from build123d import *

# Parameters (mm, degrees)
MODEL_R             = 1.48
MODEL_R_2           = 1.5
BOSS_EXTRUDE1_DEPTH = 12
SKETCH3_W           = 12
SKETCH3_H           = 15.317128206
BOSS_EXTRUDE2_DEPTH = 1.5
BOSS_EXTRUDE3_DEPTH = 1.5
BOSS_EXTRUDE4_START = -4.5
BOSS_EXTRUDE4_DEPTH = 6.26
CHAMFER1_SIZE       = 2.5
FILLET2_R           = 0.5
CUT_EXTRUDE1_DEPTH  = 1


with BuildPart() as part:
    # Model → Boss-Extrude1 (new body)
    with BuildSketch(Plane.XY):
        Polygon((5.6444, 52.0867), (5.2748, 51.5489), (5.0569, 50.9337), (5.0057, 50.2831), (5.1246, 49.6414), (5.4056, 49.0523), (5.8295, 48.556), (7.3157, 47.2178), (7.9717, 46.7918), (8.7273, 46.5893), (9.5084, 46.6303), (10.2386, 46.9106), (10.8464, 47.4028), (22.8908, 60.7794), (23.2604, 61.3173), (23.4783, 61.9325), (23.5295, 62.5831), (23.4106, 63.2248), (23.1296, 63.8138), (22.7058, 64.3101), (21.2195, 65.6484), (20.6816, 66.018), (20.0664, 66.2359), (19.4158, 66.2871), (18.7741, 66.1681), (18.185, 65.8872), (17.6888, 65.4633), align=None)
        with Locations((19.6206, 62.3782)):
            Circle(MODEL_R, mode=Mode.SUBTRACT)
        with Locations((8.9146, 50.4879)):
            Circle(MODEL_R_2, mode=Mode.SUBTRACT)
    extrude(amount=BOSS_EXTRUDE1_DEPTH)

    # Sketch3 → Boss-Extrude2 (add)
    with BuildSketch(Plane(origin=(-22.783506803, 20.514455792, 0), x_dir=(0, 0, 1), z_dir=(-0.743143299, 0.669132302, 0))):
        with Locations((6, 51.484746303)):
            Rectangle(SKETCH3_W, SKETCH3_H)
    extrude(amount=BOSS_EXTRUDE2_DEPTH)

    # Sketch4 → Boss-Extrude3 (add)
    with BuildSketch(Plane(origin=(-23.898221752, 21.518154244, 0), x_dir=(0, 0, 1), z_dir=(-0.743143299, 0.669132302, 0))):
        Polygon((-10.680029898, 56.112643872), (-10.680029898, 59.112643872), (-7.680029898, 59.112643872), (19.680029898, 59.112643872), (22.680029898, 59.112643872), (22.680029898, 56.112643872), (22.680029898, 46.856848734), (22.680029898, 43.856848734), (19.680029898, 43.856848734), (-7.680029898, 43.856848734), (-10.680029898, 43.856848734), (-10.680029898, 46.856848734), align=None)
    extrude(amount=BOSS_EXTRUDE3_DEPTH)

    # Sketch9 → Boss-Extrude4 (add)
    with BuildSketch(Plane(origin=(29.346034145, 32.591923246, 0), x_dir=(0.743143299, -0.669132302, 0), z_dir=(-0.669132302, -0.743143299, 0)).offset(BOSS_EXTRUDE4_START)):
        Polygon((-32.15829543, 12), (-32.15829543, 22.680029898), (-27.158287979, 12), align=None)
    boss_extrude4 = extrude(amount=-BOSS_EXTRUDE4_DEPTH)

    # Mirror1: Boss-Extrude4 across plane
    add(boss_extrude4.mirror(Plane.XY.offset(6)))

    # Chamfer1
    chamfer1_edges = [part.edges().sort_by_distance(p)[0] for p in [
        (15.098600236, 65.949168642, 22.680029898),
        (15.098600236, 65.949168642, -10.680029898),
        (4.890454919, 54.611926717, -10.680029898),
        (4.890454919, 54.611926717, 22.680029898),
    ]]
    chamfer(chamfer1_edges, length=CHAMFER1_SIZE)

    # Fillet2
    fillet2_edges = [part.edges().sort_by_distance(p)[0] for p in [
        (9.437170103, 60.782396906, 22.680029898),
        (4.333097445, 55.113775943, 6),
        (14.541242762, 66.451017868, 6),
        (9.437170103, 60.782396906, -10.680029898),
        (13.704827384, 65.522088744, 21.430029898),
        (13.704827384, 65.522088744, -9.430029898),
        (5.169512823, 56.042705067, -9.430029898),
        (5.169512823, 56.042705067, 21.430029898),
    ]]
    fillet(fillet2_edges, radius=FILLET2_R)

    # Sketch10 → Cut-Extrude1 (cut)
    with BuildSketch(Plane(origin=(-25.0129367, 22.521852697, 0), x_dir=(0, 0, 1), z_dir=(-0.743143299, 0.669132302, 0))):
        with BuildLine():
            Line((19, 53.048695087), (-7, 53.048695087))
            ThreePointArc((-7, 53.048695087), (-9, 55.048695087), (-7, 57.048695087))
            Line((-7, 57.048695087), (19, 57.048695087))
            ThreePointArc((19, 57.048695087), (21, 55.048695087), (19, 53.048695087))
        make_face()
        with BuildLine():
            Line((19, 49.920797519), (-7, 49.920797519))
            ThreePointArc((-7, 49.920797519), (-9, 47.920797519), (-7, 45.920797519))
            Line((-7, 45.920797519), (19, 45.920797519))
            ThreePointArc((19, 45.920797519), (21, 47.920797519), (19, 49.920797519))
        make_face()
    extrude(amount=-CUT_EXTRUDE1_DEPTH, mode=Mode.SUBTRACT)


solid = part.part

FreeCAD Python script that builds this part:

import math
import FreeCAD as App
import Part
import Sketcher
from FreeCAD import Vector
Q = App.Units.Quantity


def edges_at(feature, points):
    """Names of the edges that pass closest to the given points."""
    edges = feature.Shape.Edges
    near = lambda p: min(range(len(edges)), key=lambda i: edges[i].distToShape(Part.Vertex(*p))[0])
    return sorted({f"Edge{near(p) + 1}" for p in points})

doc = App.newDocument("Part")
body = doc.addObject("PartDesign::Body", "Body")

sketch1 = body.newObject("Sketcher::SketchObject", "Sketch")
sketch1.AttachmentSupport = (doc.getObject("XY_Plane"), [""])
sketch1.MapMode = "FlatFace"
sketch1.addGeometry(Part.LineSegment(Vector(5.6444, 52.0867, 0), Vector(5.2748, 51.5489, 0)), False)
sketch1.addGeometry(Part.LineSegment(Vector(5.2748, 51.5489, 0), Vector(5.0569, 50.9337, 0)), False)
sketch1.addGeometry(Part.LineSegment(Vector(5.0569, 50.9337, 0), Vector(5.0057, 50.2831, 0)), False)
sketch1.addGeometry(Part.LineSegment(Vector(5.0057, 50.2831, 0), Vector(5.1246, 49.6414, 0)), False)
sketch1.addGeometry(Part.LineSegment(Vector(5.1246, 49.6414, 0), Vector(5.4056, 49.0523, 0)), False)
sketch1.addGeometry(Part.LineSegment(Vector(5.4056, 49.0523, 0), Vector(5.8295, 48.556, 0)), False)
sketch1.addGeometry(Part.LineSegment(Vector(5.8295, 48.556, 0), Vector(7.3157, 47.2178, 0)), False)
sketch1.addGeometry(Part.LineSegment(Vector(7.3157, 47.2178, 0), Vector(7.9717, 46.7918, 0)), False)
sketch1.addGeometry(Part.LineSegment(Vector(7.9717, 46.7918, 0), Vector(8.7273, 46.5893, 0)), False)
sketch1.addGeometry(Part.LineSegment(Vector(8.7273, 46.5893, 0), Vector(9.5084, 46.6303, 0)), False)
sketch1.addGeometry(Part.LineSegment(Vector(9.5084, 46.6303, 0), Vector(10.2386, 46.9106, 0)), False)
sketch1.addGeometry(Part.LineSegment(Vector(10.2386, 46.9106, 0), Vector(10.8464, 47.4028, 0)), False)
sketch1.addGeometry(Part.LineSegment(Vector(10.8464, 47.4028, 0), Vector(22.8908, 60.7794, 0)), False)
sketch1.addGeometry(Part.LineSegment(Vector(22.8908, 60.7794, 0), Vector(23.2604, 61.3173, 0)), False)
sketch1.addGeometry(Part.LineSegment(Vector(23.2604, 61.3173, 0), Vector(23.4783, 61.9325, 0)), False)
sketch1.addGeometry(Part.LineSegment(Vector(23.4783, 61.9325, 0), Vector(23.5295, 62.5831, 0)), False)
sketch1.addGeometry(Part.LineSegment(Vector(23.5295, 62.5831, 0), Vector(23.4106, 63.2248, 0)), False)
sketch1.addGeometry(Part.LineSegment(Vector(23.4106, 63.2248, 0), Vector(23.1296, 63.8138, 0)), False)
sketch1.addGeometry(Part.LineSegment(Vector(23.1296, 63.8138, 0), Vector(22.7058, 64.3101, 0)), False)
sketch1.addGeometry(Part.LineSegment(Vector(22.7058, 64.3101, 0), Vector(21.2195, 65.6484, 0)), False)
sketch1.addGeometry(Part.LineSegment(Vector(21.2195, 65.6484, 0), Vector(20.6816, 66.018, 0)), False)
sketch1.addGeometry(Part.LineSegment(Vector(20.6816, 66.018, 0), Vector(20.0664, 66.2359, 0)), False)
sketch1.addGeometry(Part.LineSegment(Vector(20.0664, 66.2359, 0), Vector(19.4158, 66.2871, 0)), False)
sketch1.addGeometry(Part.LineSegment(Vector(19.4158, 66.2871, 0), Vector(18.7741, 66.1681, 0)), False)
sketch1.addGeometry(Part.LineSegment(Vector(18.7741, 66.1681, 0), Vector(18.185, 65.8872, 0)), False)
sketch1.addGeometry(Part.LineSegment(Vector(18.185, 65.8872, 0), Vector(17.6888, 65.4633, 0)), False)
sketch1.addGeometry(Part.LineSegment(Vector(17.6888, 65.4633, 0), Vector(5.6444, 52.0867, 0)), False)
sketch1.addGeometry(Part.Circle(Vector(8.9146, 50.4879, 0), Vector(0, 0, 1), 1.5), False)
sketch1.addGeometry(Part.Circle(Vector(19.6206, 62.3782, 0), Vector(0, 0, 1), 1.48), False)
sketch1.addConstraint(Sketcher.Constraint("Coincident", 0, 2, 1, 1))
sketch1.addConstraint(Sketcher.Constraint("Coincident", 1, 2, 2, 1))
sketch1.addConstraint(Sketcher.Constraint("Coincident", 2, 2, 3, 1))
sketch1.addConstraint(Sketcher.Constraint("Coincident", 3, 2, 4, 1))
sketch1.addConstraint(Sketcher.Constraint("Coincident", 4, 2, 5, 1))
sketch1.addConstraint(Sketcher.Constraint("Coincident", 5, 2, 6, 1))
sketch1.addConstraint(Sketcher.Constraint("Coincident", 6, 2, 7, 1))
sketch1.addConstraint(Sketcher.Constraint("Coincident", 7, 2, 8, 1))
sketch1.addConstraint(Sketcher.Constraint("Coincident", 8, 2, 9, 1))
sketch1.addConstraint(Sketcher.Constraint("Coincident", 9, 2, 10, 1))
sketch1.addConstraint(Sketcher.Constraint("Coincident", 10, 2, 11, 1))
sketch1.addConstraint(Sketcher.Constraint("Coincident", 11, 2, 12, 1))
sketch1.addConstraint(Sketcher.Constraint("Coincident", 12, 2, 13, 1))
sketch1.addConstraint(Sketcher.Constraint("Coincident", 13, 2, 14, 1))
sketch1.addConstraint(Sketcher.Constraint("Coincident", 14, 2, 15, 1))
sketch1.addConstraint(Sketcher.Constraint("Coincident", 15, 2, 16, 1))
sketch1.addConstraint(Sketcher.Constraint("Coincident", 16, 2, 17, 1))
sketch1.addConstraint(Sketcher.Constraint("Coincident", 17, 2, 18, 1))
sketch1.addConstraint(Sketcher.Constraint("Coincident", 18, 2, 19, 1))
sketch1.addConstraint(Sketcher.Constraint("Coincident", 19, 2, 20, 1))
sketch1.addConstraint(Sketcher.Constraint("Coincident", 20, 2, 21, 1))
sketch1.addConstraint(Sketcher.Constraint("Coincident", 21, 2, 22, 1))
sketch1.addConstraint(Sketcher.Constraint("Coincident", 22, 2, 23, 1))
sketch1.addConstraint(Sketcher.Constraint("Coincident", 23, 2, 24, 1))
sketch1.addConstraint(Sketcher.Constraint("Coincident", 24, 2, 25, 1))
sketch1.addConstraint(Sketcher.Constraint("Coincident", 25, 2, 26, 1))
sketch1.addConstraint(Sketcher.Constraint("Coincident", 26, 2, 0, 1))
sketch1.addConstraint(Sketcher.Constraint("Parallel", 1, 14))
sketch1.addConstraint(Sketcher.Constraint("Parallel", 2, 15))
sketch1.addConstraint(Sketcher.Constraint("Parallel", 3, 16))
sketch1.addConstraint(Sketcher.Constraint("Perpendicular", 13, 20))
sketch1.addConstraint(Sketcher.Constraint("Perpendicular", 14, 21))
sketch1.addConstraint(Sketcher.Constraint("Perpendicular", 15, 22))
sketch1.addConstraint(Sketcher.Constraint("Parallel", 12, 26))
sketch1.addConstraint(Sketcher.Constraint("Equal", 1, 14))
sketch1.addConstraint(Sketcher.Constraint("Equal", 2, 15))
sketch1.addConstraint(Sketcher.Constraint("Equal", 3, 16))
sketch1.addConstraint(Sketcher.Constraint("Equal", 13, 20))
sketch1.addConstraint(Sketcher.Constraint("Equal", 14, 21))
sketch1.addConstraint(Sketcher.Constraint("Equal", 15, 22))
sketch1.addConstraint(Sketcher.Constraint("Equal", 20, 23))
sketch1.addConstraint(Sketcher.Constraint("Equal", 12, 26))
sketch1.addConstraint(Sketcher.Constraint("Diameter", 27, Q("3 mm")))
sketch1.addConstraint(Sketcher.Constraint("Diameter", 28, Q("2.96 mm")))
sketch1.addConstraint(Sketcher.Constraint("DistanceX", 3, 2, 27, 3, Q("3.79 mm")))
sketch1.addConstraint(Sketcher.Constraint("DistanceX", 2, 2, 6, 2, Q("2.31 mm")))
sketch1.addConstraint(Sketcher.Constraint("DistanceX", 28, 3, 16, 2, Q("3.79 mm")))
sketch1.addConstraint(Sketcher.Constraint("DistanceX", 19, 2, 15, 2, Q("2.31 mm")))
sketch1.addConstraint(Sketcher.Constraint("DistanceX", 22, 2, 18, 2, Q("3.29 mm")))
sketch1.addConstraint(Sketcher.Constraint("DistanceY", -1, 1, 5, 2, Q("48.556 mm")))
sketch1.addConstraint(Sketcher.Constraint("DistanceY", -1, 1, 20, 2, Q("66.018 mm")))
sketch1.addConstraint(Sketcher.Constraint("DistanceX", -1, 1, 24, 2, Q("18.185 mm")))
sketch1.addConstraint(Sketcher.Constraint("DistanceX", 27, 3, 28, 3, Q("10.706 mm")))
sketch1.addConstraint(Sketcher.Constraint("DistanceY", 27, 3, 0, 2, Q("1.061 mm")))
sketch1.addConstraint(Sketcher.Constraint("DistanceX", 3, 2, 4, 2, Q("0.281 mm")))
sketch1.addConstraint(Sketcher.Constraint("DistanceX", 6, 2, 7, 2, Q("0.656 mm")))
sketch1.addConstraint(Sketcher.Constraint("DistanceY", 7, 2, 6, 2, Q("0.426 mm")))
sketch1.addConstraint(Sketcher.Constraint("DistanceY", 8, 2, 4, 2, Q("2.463 mm")))
sketch1.addConstraint(Sketcher.Constraint("DistanceY", 8, 2, 9, 2, Q("0.041 mm")))
sketch1.addConstraint(Sketcher.Constraint("DistanceX", 27, 3, 10, 2, Q("1.324 mm")))
sketch1.addConstraint(Sketcher.Constraint("DistanceX", 9, 2, 11, 2, Q("1.338 mm")))
sketch1.addConstraint(Sketcher.Constraint("DistanceY", 7, 2, 11, 2, Q("0.611 mm")))
sketch1.addConstraint(Sketcher.Constraint("DistanceX", 11, 2, 13, 2, Q("12.414 mm")))
sketch1.addConstraint(Sketcher.Constraint("DistanceX", 17, 2, 16, 2, Q("0.281 mm")))
sketch1.addConstraint(Sketcher.Constraint("DistanceY", 16, 2, 17, 2, Q("0.589 mm")))
sketch1.addConstraint(Sketcher.Constraint("DistanceY", 15, 2, 18, 2, Q("1.727 mm")))
sketch1.addConstraint(Sketcher.Constraint("DistanceX", 20, 2, 17, 2, Q("2.448 mm")))
sketch1.addConstraint(Sketcher.Constraint("DistanceY", 18, 2, 22, 2, Q("1.977 mm")))
sketch1.addConstraint(Sketcher.Constraint("DistanceY", 23, 2, 22, 2, Q("0.119 mm")))
sketch1.addConstraint(Sketcher.Constraint("DistanceX", 25, 2, 22, 2, Q("1.727 mm")))
sketch1.addConstraint(Sketcher.Constraint("DistanceY", 1, 2, 26, 2, Q("1.153 mm")))
sketch1.addConstraint(Sketcher.Constraint("Distance", 11, Q("0.782101 mm")))
sketch1.addConstraint(Sketcher.Constraint("DistanceX", -1, 1, 27, 3, Q("8.9146 mm")))
sketch1.addConstraint(Sketcher.Constraint("DistanceY", -1, 1, 27, 3, Q("50.4879 mm")))
sketch1.addConstraint(Sketcher.Constraint("DistanceY", -1, 1, 28, 3, Q("62.3782 mm")))
sketch1.addConstraint(Sketcher.Constraint("DistanceX", -1, 1, 0, 2, Q("5.2748 mm")))
sketch1.addConstraint(Sketcher.Constraint("DistanceX", -1, 1, 1, 2, Q("5.0569 mm")))
sketch1.addConstraint(Sketcher.Constraint("DistanceY", -1, 1, 1, 2, Q("50.9337 mm")))
sketch1.addConstraint(Sketcher.Constraint("DistanceX", -1, 1, 2, 2, Q("5.0057 mm")))
sketch1.addConstraint(Sketcher.Constraint("DistanceY", -1, 1, 2, 2, Q("50.2831 mm")))
sketch1.addConstraint(Sketcher.Constraint("DistanceY", -1, 1, 3, 2, Q("49.6414 mm")))
sketch1.addConstraint(Sketcher.Constraint("DistanceY", -1, 1, 4, 2, Q("49.0523 mm")))
sketch1.addConstraint(Sketcher.Constraint("DistanceX", -1, 1, 5, 2, Q("5.8295 mm")))
sketch1.addConstraint(Sketcher.Constraint("DistanceY", -1, 1, 6, 2, Q("47.2178 mm")))
sketch1.addConstraint(Sketcher.Constraint("DistanceX", -1, 1, 8, 2, Q("8.7273 mm")))
sketch1.addConstraint(Sketcher.Constraint("DistanceX", -1, 1, 12, 2, Q("22.8908 mm")))
sketch1.addConstraint(Sketcher.Constraint("DistanceY", -1, 1, 24, 2, Q("65.8872 mm")))
pad1 = body.newObject("PartDesign::Pad", "Pad")
pad1.Profile = sketch1
pad1.Length = 12

sketch2 = body.newObject("Sketcher::SketchObject", "Sketch001")
sketch2.Placement = App.Placement(Vector(-22.783507, 20.514456, 0), App.Rotation(Vector(0, 0, 1), Vector(0.669132302, 0.743143299, 0), Vector(-0.743143299, 0.669132302, 0), "ZXY"))
sketch2.addGeometry(Part.LineSegment(Vector(0, 59.14331, 0), Vector(0, 43.826182, 0)), False)
sketch2.addGeometry(Part.LineSegment(Vector(0, 43.826182, 0), Vector(12, 43.826182, 0)), False)
sketch2.addGeometry(Part.LineSegment(Vector(12, 43.826182, 0), Vector(12, 59.14331, 0)), False)
sketch2.addGeometry(Part.LineSegment(Vector(12, 59.14331, 0), Vector(0, 59.14331, 0)), False)
sketch2.addConstraint(Sketcher.Constraint("Coincident", 0, 2, 1, 1))
sketch2.addConstraint(Sketcher.Constraint("Coincident", 1, 2, 2, 1))
sketch2.addConstraint(Sketcher.Constraint("Coincident", 2, 2, 3, 1))
sketch2.addConstraint(Sketcher.Constraint("Coincident", 3, 2, 0, 1))
sketch2.addConstraint(Sketcher.Constraint("Vertical", 0))
sketch2.addConstraint(Sketcher.Constraint("Horizontal", 1))
sketch2.addConstraint(Sketcher.Constraint("Vertical", 2))
sketch2.addConstraint(Sketcher.Constraint("Horizontal", 3))
sketch2.addConstraint(Sketcher.Constraint("PointOnObject", 0, 2, -2))
sketch2.addConstraint(Sketcher.Constraint("DistanceX", 1, 1, 1, 2, Q("12 mm")))
sketch2.addConstraint(Sketcher.Constraint("DistanceY", 0, 2, 0, 1, Q("15.317128 mm")))
sketch2.addConstraint(Sketcher.Constraint("DistanceY", -1, 1, 2, 2, Q("59.14331 mm")))
pad2 = body.newObject("PartDesign::Pad", "Pad001")
pad2.Profile = sketch2
pad2.Length = 1.5

sketch3 = body.newObject("Sketcher::SketchObject", "Sketch002")
sketch3.Placement = App.Placement(Vector(-23.898222, 21.518154, 0), App.Rotation(Vector(0, 0, 1), Vector(0.669132302, 0.743143299, 0), Vector(-0.743143299, 0.669132302, 0), "ZXY"))
sketch3.addGeometry(Part.LineSegment(Vector(-10.68003, 59.112644, 0), Vector(-10.68003, 43.856849, 0)), False)
sketch3.addGeometry(Part.LineSegment(Vector(-10.68003, 43.856849, 0), Vector(22.68003, 43.856849, 0)), False)
sketch3.addGeometry(Part.LineSegment(Vector(22.68003, 43.856849, 0), Vector(22.68003, 59.112644, 0)), False)
sketch3.addGeometry(Part.LineSegment(Vector(22.68003, 59.112644, 0), Vector(-10.68003, 59.112644, 0)), False)
sketch3.addConstraint(Sketcher.Constraint("Coincident", 0, 2, 1, 1))
sketch3.addConstraint(Sketcher.Constraint("Coincident", 1, 2, 2, 1))
sketch3.addConstraint(Sketcher.Constraint("Coincident", 2, 2, 3, 1))
sketch3.addConstraint(Sketcher.Constraint("Coincident", 3, 2, 0, 1))
sketch3.addConstraint(Sketcher.Constraint("Vertical", 0))
sketch3.addConstraint(Sketcher.Constraint("Horizontal", 1))
sketch3.addConstraint(Sketcher.Constraint("Vertical", 2))
sketch3.addConstraint(Sketcher.Constraint("Horizontal", 3))
sketch3.addConstraint(Sketcher.Constraint("DistanceX", 1, 1, 1, 2, Q("33.36006 mm")))
sketch3.addConstraint(Sketcher.Constraint("DistanceY", 0, 2, 0, 1, Q("15.255795 mm")))
sketch3.addConstraint(Sketcher.Constraint("DistanceX", 0, 2, -1, 1, Q("10.68003 mm")))
sketch3.addConstraint(Sketcher.Constraint("DistanceY", -1, 1, 0, 2, Q("43.856849 mm")))
pad3 = body.newObject("PartDesign::Pad", "Pad002")
pad3.Profile = sketch3
pad3.Length = 1.5

sketch4 = body.newObject("Sketcher::SketchObject", "Sketch003")
sketch4.Placement = App.Placement(Vector(32.35713, 35.936068, 0), App.Rotation(Vector(0.743143299, -0.669132302, 0), Vector(0, 0, 1), Vector(-0.669132302, -0.743143299, 0), "ZXY"))
sketch4.addGeometry(Part.LineSegment(Vector(-32.158295, 22.68003, 0), Vector(-32.158295, 12, 0)), False)
sketch4.addGeometry(Part.LineSegment(Vector(-32.158295, 12, 0), Vector(-27.158288, 12, 0)), False)
sketch4.addGeometry(Part.LineSegment(Vector(-27.158288, 12, 0), Vector(-32.158295, 22.68003, 0)), False)
sketch4.addConstraint(Sketcher.Constraint("Coincident", 0, 2, 1, 1))
sketch4.addConstraint(Sketcher.Constraint("Coincident", 1, 2, 2, 1))
sketch4.addConstraint(Sketcher.Constraint("Coincident", 2, 2, 0, 1))
sketch4.addConstraint(Sketcher.Constraint("Vertical", 0))
sketch4.addConstraint(Sketcher.Constraint("Horizontal", 1))
sketch4.addConstraint(Sketcher.Constraint("DistanceY", -1, 1, 0, 2, Q("12 mm")))
sketch4.addConstraint(Sketcher.Constraint("DistanceY", 0, 2, 0, 1, Q("10.68003 mm")))
sketch4.addConstraint(Sketcher.Constraint("DistanceX", 1, 1, 1, 2, Q("5.000007 mm")))
sketch4.addConstraint(Sketcher.Constraint("DistanceX", 0, 2, -1, 1, Q("32.158295 mm")))
pad4 = body.newObject("PartDesign::Pad", "Pad003")
pad4.Profile = sketch4
pad4.Length = 6.26
pad4.Reversed = True
doc.recompute()

datumplane = body.newObject("PartDesign::Plane", "DatumPlane")
datumplane.AttachmentSupport = (doc.getObject("XY_Plane"), [""])
datumplane.MapMode = "FlatFace"
datumplane.AttachmentOffset = App.Placement(Vector(0, 0, 6), App.Rotation())
mirrored = body.newObject("PartDesign::Mirrored", "Mirrored")
mirrored.Originals = [pad4]
mirrored.MirrorPlane = (datumplane, [""])
body.Tip = mirrored
doc.recompute()

chamfer = body.newObject("PartDesign::Chamfer", "Chamfer")
chamfer.Base = (mirrored, edges_at(mirrored, [
    (15.099, 65.949, 22.68),
    (15.099, 65.949, -10.68),
    (4.89, 54.612, -10.68),
    (4.89, 54.612, 22.68),
]))
chamfer.Size = 2.5
doc.recompute()

fillet = body.newObject("PartDesign::Fillet", "Fillet")
fillet.Base = (chamfer, edges_at(chamfer, [
    (9.437, 60.782, 22.68),
    (4.333, 55.114, 6),
    (14.541, 66.451, 6),
    (9.437, 60.782, -10.68),
    (13.705, 65.522, 21.43),
    (13.705, 65.522, -9.43),
    (5.17, 56.043, -9.43),
    (5.17, 56.043, 21.43),
]))
fillet.Radius = 0.5

sketch5 = body.newObject("Sketcher::SketchObject", "Sketch004")
sketch5.Placement = App.Placement(Vector(-25.012937, 22.521853, 0), App.Rotation(Vector(0, 0, 1), Vector(0.669132302, 0.743143299, 0), Vector(-0.743143299, 0.669132302, 0), "ZXY"))
sketch5.addGeometry(Part.LineSegment(Vector(-7, 53.048695, 0), Vector(19, 53.048695, 0)), False)
sketch5.addGeometry(Part.ArcOfCircle(Part.Circle(Vector(19, 55.048695, 0), Vector(0, 0, 1), 2), math.radians(-90), math.radians(90)), False)
sketch5.addGeometry(Part.LineSegment(Vector(19, 57.048695, 0), Vector(-7, 57.048695, 0)), False)
sketch5.addGeometry(Part.ArcOfCircle(Part.Circle(Vector(-7, 55.048695, 0), Vector(0, 0, 1), 2), math.radians(90), math.radians(270)), False)
sketch5.addGeometry(Part.LineSegment(Vector(19, 49.920798, 0), Vector(-7, 49.920798, 0)), False)
sketch5.addGeometry(Part.ArcOfCircle(Part.Circle(Vector(-7, 47.920798, 0), Vector(0, 0, 1), 2), math.radians(90), math.radians(270)), False)
sketch5.addGeometry(Part.LineSegment(Vector(-7, 45.920798, 0), Vector(19, 45.920798, 0)), False)
sketch5.addGeometry(Part.ArcOfCircle(Part.Circle(Vector(19, 47.920798, 0), Vector(0, 0, 1), 2), math.radians(-90), math.radians(90)), False)
sketch5.addConstraint(Sketcher.Constraint("Tangent", 0, 2, 1, 1))
sketch5.addConstraint(Sketcher.Constraint("Tangent", 1, 2, 2, 1))
sketch5.addConstraint(Sketcher.Constraint("Tangent", 2, 2, 3, 1))
sketch5.addConstraint(Sketcher.Constraint("Tangent", 3, 2, 0, 1))
sketch5.addConstraint(Sketcher.Constraint("Tangent", 4, 2, 5, 1))
sketch5.addConstraint(Sketcher.Constraint("Tangent", 5, 2, 6, 1))
sketch5.addConstraint(Sketcher.Constraint("Tangent", 6, 2, 7, 1))
sketch5.addConstraint(Sketcher.Constraint("Tangent", 7, 2, 4, 1))
sketch5.addConstraint(Sketcher.Constraint("Horizontal", 0))
sketch5.addConstraint(Sketcher.Constraint("Horizontal", 2))
sketch5.addConstraint(Sketcher.Constraint("Horizontal", 4))
sketch5.addConstraint(Sketcher.Constraint("Horizontal", 6))
sketch5.addConstraint(Sketcher.Constraint("Equal", 3, 5))
sketch5.addConstraint(Sketcher.Constraint("Vertical", 3, 3, 5, 3))
sketch5.addConstraint(Sketcher.Constraint("Vertical", 1, 3, 7, 3))
sketch5.addConstraint(Sketcher.Constraint("Radius", 1, Q("2 mm")))
sketch5.addConstraint(Sketcher.Constraint("DistanceX", 0, 1, 0, 2, Q("26 mm")))
sketch5.addConstraint(Sketcher.Constraint("DistanceX", -1, 1, 1, 3, Q("19 mm")))
sketch5.addConstraint(Sketcher.Constraint("DistanceY", -1, 1, 1, 3, Q("55.048695 mm")))
sketch5.addConstraint(Sketcher.Constraint("DistanceY", -1, 1, 5, 3, Q("47.920798 mm")))
pocket1 = body.newObject("PartDesign::Pocket", "Pocket")
pocket1.Profile = sketch5
pocket1.Length = 1

doc.recompute()
